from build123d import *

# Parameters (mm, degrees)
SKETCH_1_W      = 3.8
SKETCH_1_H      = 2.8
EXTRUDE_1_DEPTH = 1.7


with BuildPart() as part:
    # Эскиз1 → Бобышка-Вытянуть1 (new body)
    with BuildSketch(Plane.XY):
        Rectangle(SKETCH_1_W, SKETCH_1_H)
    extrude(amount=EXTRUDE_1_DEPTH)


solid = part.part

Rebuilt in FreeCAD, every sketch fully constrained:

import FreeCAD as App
import Part
import Sketcher
from FreeCAD import Vector

doc = App.newDocument("Part")
body = doc.addObject("PartDesign::Body", "Body")

# Sketch on XY plane
sketch1 = doc.addObject("Sketcher::SketchObject", "Sketch")
body.addObject(sketch1)
sketch1.AttachmentSupport = (doc.XY_Plane, [""])
sketch1.MapMode = "FlatFace"
sketch1.addGeometry([
    Part.LineSegment(Vector(-1.9, 1.4, 0), Vector(-1.9, -1.4, 0)),
    Part.LineSegment(Vector(-1.9, -1.4, 0), Vector(1.9, -1.4, 0)),
    Part.LineSegment(Vector(1.9, -1.4, 0), Vector(1.9, 1.4, 0)),
    Part.LineSegment(Vector(1.9, 1.4, 0), Vector(-1.9, 1.4, 0)),
], False)
sketch1.addConstraint([
    Sketcher.Constraint("Coincident", 0, 2, 1, 1),
    Sketcher.Constraint("Coincident", 1, 2, 2, 1),
    Sketcher.Constraint("Coincident", 2, 2, 3, 1),
    Sketcher.Constraint("Coincident", 3, 2, 0, 1),
    Sketcher.Constraint("Vertical", 0),
    Sketcher.Constraint("Horizontal", 1),
    Sketcher.Constraint("Vertical", 2),
    Sketcher.Constraint("Horizontal", 3),
    Sketcher.Constraint("Symmetric", 0, 2, 2, 2, -1, 1),
    Sketcher.Constraint("DistanceX", 1, 1, 1, 2, 3.8),
    Sketcher.Constraint("DistanceY", 0, 2, 0, 1, 2.8),
])
pad1 = doc.addObject("PartDesign::Pad", "Pad")
body.addObject(pad1)
pad1.Profile = sketch1
pad1.Length = 1.7

doc.recompute()
